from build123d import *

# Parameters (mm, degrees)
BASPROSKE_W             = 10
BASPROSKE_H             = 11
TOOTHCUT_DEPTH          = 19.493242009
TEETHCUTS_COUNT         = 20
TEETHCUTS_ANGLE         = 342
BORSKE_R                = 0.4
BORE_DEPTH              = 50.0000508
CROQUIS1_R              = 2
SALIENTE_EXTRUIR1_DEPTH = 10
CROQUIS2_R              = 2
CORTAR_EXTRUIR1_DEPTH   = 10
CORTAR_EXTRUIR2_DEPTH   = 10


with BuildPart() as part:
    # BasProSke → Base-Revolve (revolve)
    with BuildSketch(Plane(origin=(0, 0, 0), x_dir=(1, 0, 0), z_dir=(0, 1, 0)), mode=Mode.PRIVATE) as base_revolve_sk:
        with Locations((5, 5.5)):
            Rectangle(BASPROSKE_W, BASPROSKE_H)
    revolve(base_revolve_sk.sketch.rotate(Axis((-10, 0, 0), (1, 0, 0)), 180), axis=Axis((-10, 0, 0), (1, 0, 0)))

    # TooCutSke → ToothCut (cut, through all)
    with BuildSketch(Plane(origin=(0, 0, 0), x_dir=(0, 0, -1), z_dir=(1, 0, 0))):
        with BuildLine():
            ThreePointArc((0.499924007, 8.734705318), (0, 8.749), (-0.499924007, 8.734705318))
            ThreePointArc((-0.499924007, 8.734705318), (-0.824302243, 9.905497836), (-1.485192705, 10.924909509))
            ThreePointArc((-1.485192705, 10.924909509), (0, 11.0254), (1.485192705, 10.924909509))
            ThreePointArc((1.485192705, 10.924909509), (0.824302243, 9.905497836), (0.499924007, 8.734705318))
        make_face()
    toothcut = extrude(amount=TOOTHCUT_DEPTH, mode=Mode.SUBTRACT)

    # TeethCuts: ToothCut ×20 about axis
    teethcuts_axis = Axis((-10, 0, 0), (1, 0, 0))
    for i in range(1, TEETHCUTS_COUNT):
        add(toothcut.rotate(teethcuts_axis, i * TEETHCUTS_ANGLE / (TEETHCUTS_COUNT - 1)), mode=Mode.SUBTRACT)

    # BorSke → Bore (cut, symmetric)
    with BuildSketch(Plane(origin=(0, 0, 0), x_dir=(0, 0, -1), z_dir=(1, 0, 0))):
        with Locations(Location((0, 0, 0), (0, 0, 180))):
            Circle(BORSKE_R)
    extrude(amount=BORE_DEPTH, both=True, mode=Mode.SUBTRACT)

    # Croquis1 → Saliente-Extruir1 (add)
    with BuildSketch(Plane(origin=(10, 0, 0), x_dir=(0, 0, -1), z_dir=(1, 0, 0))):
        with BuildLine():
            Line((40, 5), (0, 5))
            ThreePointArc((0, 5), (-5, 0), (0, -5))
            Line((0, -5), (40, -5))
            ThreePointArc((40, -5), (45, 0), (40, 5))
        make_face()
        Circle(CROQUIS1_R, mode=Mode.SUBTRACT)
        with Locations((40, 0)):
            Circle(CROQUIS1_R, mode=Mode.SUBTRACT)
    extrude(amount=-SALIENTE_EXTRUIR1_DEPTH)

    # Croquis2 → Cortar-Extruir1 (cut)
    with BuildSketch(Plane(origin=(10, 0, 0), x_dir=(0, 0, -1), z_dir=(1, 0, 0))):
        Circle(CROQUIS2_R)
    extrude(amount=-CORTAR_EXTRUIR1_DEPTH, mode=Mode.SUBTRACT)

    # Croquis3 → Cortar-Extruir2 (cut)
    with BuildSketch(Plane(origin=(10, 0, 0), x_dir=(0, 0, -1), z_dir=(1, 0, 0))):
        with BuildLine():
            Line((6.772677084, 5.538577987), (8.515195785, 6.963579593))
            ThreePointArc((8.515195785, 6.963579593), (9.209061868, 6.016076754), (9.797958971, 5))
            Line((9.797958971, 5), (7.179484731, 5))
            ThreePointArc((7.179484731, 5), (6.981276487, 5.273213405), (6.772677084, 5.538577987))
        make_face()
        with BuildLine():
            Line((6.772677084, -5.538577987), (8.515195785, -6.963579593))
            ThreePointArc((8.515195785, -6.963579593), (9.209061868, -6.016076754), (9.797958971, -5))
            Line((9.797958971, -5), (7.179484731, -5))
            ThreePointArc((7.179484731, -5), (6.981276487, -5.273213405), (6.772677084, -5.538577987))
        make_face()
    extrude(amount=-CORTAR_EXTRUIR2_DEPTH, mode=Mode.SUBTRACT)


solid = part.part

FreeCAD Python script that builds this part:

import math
import FreeCAD as App
import Part
import Sketcher
from FreeCAD import Vector

doc = App.newDocument("Part")
body = doc.addObject("PartDesign::Body", "Body")

# Sketch on XZ plane
sketch1 = body.newObject("Sketcher::SketchObject", "Sketch")
sketch1.AttachmentSupport = (doc.getObject("XZ_Plane"), [""])
sketch1.MapMode = "FlatFace"
sketch1.addGeometry([
    Part.LineSegment(Vector(0, -11, 0), Vector(0, 0, 0)),
    Part.LineSegment(Vector(0, 0, 0), Vector(10, 0, 0)),
    Part.LineSegment(Vector(10, 0, 0), Vector(10, -11, 0)),
    Part.LineSegment(Vector(10, -11, 0), Vector(0, -11, 0)),
], False)
sketch1.addConstraint([
    Sketcher.Constraint("Coincident", 0, 2, 1, 1),
    Sketcher.Constraint("Coincident", 1, 2, 2, 1),
    Sketcher.Constraint("Coincident", 2, 2, 3, 1),
    Sketcher.Constraint("Coincident", 3, 2, 0, 1),
    Sketcher.Constraint("Vertical", 0),
    Sketcher.Constraint("Horizontal", 1),
    Sketcher.Constraint("Vertical", 2),
    Sketcher.Constraint("Horizontal", 3),
    Sketcher.Constraint("Coincident", 0, 2, -1, 1),
    Sketcher.Constraint("DistanceX", 1, 1, 1, 2, 10.0),
    Sketcher.Constraint("DistanceY", 0, 1, 0, 2, 11.0),
])
revolution = body.newObject("PartDesign::Revolution", "Revolution")
revolution.Profile = sketch1
revolution.ReferenceAxis = (sketch1, ["H_Axis"])
revolution.Angle = 360

# Sketch on YZ plane
sketch2 = body.newObject("Sketcher::SketchObject", "Sketch001")
sketch2.AttachmentSupport = (doc.getObject("YZ_Plane"), [""])
sketch2.MapMode = "FlatFace"
sketch2.addGeometry([
    Part.ArcOfCircle(Part.Circle(Vector(0, 0, 0), Vector(0, 0, 1), 8.7), math.radians(-3.28), math.radians(3.28)),
    Part.ArcOfCircle(Part.Circle(Vector(8.3, -4.5, 0), Vector(0, 0, 1), 4), math.radians(48), math.radians(83)),
    Part.ArcOfCircle(Part.Circle(Vector(0, 0, 0), Vector(0, 0, 1), 11), math.radians(-7.74), math.radians(7.74)),
    Part.ArcOfCircle(Part.Circle(Vector(8.3, 4.5, 0), Vector(0, 0, 1), 4), math.radians(-83), math.radians(-48)),
], False)
sketch2.addConstraint([
    Sketcher.Constraint("Coincident", 0, 1, 1, 2),
    Sketcher.Constraint("Coincident", 1, 1, 2, 1),
    Sketcher.Constraint("Coincident", 2, 2, 3, 2),
    Sketcher.Constraint("Coincident", 3, 1, 0, 2),
    Sketcher.Constraint("Coincident", 0, 3, -1, 1),
    Sketcher.Constraint("Coincident", 2, 3, -1, 1),
    Sketcher.Constraint("Equal", 1, 3),
    Sketcher.Constraint("Symmetric", 1, 3, 3, 3, -1),
    Sketcher.Constraint("Radius", 1, 4.0),
    Sketcher.Constraint("Radius", 0, 8.749),
    Sketcher.Constraint("Radius", 2, 11.0254),
    Sketcher.Constraint("DistanceY", 1, 3, -1, 1, 4.47219),
    Sketcher.Constraint("DistanceX", -1, 1, 1, 1, 10.92491),
])
pocket1 = body.newObject("PartDesign::Pocket", "Pocket")
pocket1.Profile = sketch2
pocket1.Type = "ThroughAll"
pocket1.Reversed = True
doc.recompute()

polarpattern = body.newObject("PartDesign::PolarPattern", "PolarPattern")
polarpattern.Originals = [pocket1]
polarpattern.Axis = (doc.getObject("X_Axis"), [""])
polarpattern.Angle = 360
polarpattern.Occurrences = 20
body.Tip = polarpattern

# Sketch on YZ plane
sketch3 = body.newObject("Sketcher::SketchObject", "Sketch002")
sketch3.AttachmentSupport = (doc.getObject("YZ_Plane"), [""])
sketch3.MapMode = "FlatFace"
sketch3.addGeometry(Part.Circle(Vector(0, 0, 0), Vector(0, 0, 1), 0.4), False)
sketch3.addConstraint([
    Sketcher.Constraint("Coincident", 0, 3, -1, 1),
    Sketcher.Constraint("Diameter", 0, 0.8),
])
pocket2 = body.newObject("PartDesign::Pocket", "Pocket001")
pocket2.Profile = sketch3
pocket2.Length = 100.000102
pocket2.Midplane = True

# Sketch on YZ plane
sketch4 = body.newObject("Sketcher::SketchObject", "Sketch003")
sketch4.AttachmentSupport = (doc.getObject("YZ_Plane"), [""])
sketch4.MapMode = "FlatFace"
sketch4.AttachmentOffset = App.Placement(Vector(0, 0, 10), App.Rotation())
sketch4.addGeometry([
    Part.LineSegment(Vector(5, -40, 0), Vector(5, 0, 0)),  # 0
    Part.ArcOfCircle(Part.Circle(Vector(0, 0, 0), Vector(0, 0, 1), 5), math.radians(0), math.radians(180)),  # 1
    Part.LineSegment(Vector(-5, 0, 0), Vector(-5, -40, 0)),  # 2
    Part.ArcOfCircle(Part.Circle(Vector(0, -40, 0), Vector(0, 0, 1), 5), math.radians(180), math.radians(360)),  # 3
    Part.Circle(Vector(0, 0, 0), Vector(0, 0, 1), 2),  # 4
    Part.Circle(Vector(0, -40, 0), Vector(0, 0, 1), 2),  # 5
], False)
sketch4.addConstraint([
    Sketcher.Constraint("Tangent", 0, 2, 1, 1),
    Sketcher.Constraint("Tangent", 1, 2, 2, 1),
    Sketcher.Constraint("Tangent", 2, 2, 3, 1),
    Sketcher.Constraint("Tangent", 3, 2, 0, 1),
    Sketcher.Constraint("Vertical", 0),
    Sketcher.Constraint("Vertical", 2),
    Sketcher.Constraint("Coincident", 1, 3, -1, 1),
    Sketcher.Constraint("Coincident", 4, 3, -1, 1),
    Sketcher.Constraint("Coincident", 5, 3, 3, 3),
    Sketcher.Constraint("Equal", 4, 5),
    Sketcher.Constraint("Diameter", 4, 4.0),
    Sketcher.Constraint("Radius", 1, 5.0),
    Sketcher.Constraint("DistanceY", 0, 1, 0, 2, 40.0),
])
pad1 = body.newObject("PartDesign::Pad", "Pad")
pad1.Profile = sketch4
pad1.Length = 10
pad1.Reversed = True

# Sketch on YZ plane
sketch5 = body.newObject("Sketcher::SketchObject", "Sketch004")
sketch5.AttachmentSupport = (doc.getObject("YZ_Plane"), [""])
sketch5.MapMode = "FlatFace"
sketch5.AttachmentOffset = App.Placement(Vector(0, 0, 10), App.Rotation())
sketch5.addGeometry(Part.Circle(Vector(0, 0, 0), Vector(0, 0, 1), 2), False)
sketch5.addConstraint([
    Sketcher.Constraint("Coincident", 0, 3, -1, 1),
    Sketcher.Constraint("Diameter", 0, 4.0),
])
pocket3 = body.newObject("PartDesign::Pocket", "Pocket002")
pocket3.Profile = sketch5
pocket3.Length = 10

# Sketch on YZ plane
sketch6 = body.newObject("Sketcher::SketchObject", "Sketch005")
sketch6.AttachmentSupport = (doc.getObject("YZ_Plane"), [""])
sketch6.MapMode = "FlatFace"
sketch6.AttachmentOffset = App.Placement(Vector(0, 0, 10), App.Rotation())
sketch6.addGeometry([
    Part.LineSegment(Vector(7, -8.5, 0), Vector(5.5, -6.8, 0)),  # 0
    Part.ArcOfCircle(Part.Circle(Vector(0, 0, 0), Vector(0, 0, 1), 8.7), math.radians(-55.15), math.radians(-50.72)),  # 1
    Part.LineSegment(Vector(5, -7.2, 0), Vector(5, -9.8, 0)),  # 2
    Part.ArcOfCircle(Part.Circle(Vector(0, 0, 0), Vector(0, 0, 1), 11), math.radians(-62.96), math.radians(-50.72)),  # 3
    Part.LineSegment(Vector(-5.5, -6.8, 0), Vector(-7, -8.5, 0)),  # 4
    Part.ArcOfCircle(Part.Circle(Vector(0, 0, 0), Vector(0, 0, 1), 11), math.radians(-129.28), math.radians(-117.04)),  # 5
    Part.LineSegment(Vector(-5, -9.8, 0), Vector(-5, -7.2, 0)),  # 6
    Part.ArcOfCircle(Part.Circle(Vector(0, 0, 0), Vector(0, 0, 1), 8.7), math.radians(-129.28), math.radians(-124.85)),  # 7
], False)
sketch6.addConstraint([
    Sketcher.Constraint("Coincident", 0, 2, 1, 2),
    Sketcher.Constraint("Coincident", 1, 1, 2, 1),
    Sketcher.Constraint("Coincident", 2, 2, 3, 1),
    Sketcher.Constraint("Coincident", 3, 2, 0, 1),
    Sketcher.Constraint("Coincident", 4, 2, 5, 1),
    Sketcher.Constraint("Coincident", 5, 2, 6, 1),
    Sketcher.Constraint("Coincident", 6, 2, 7, 2),
    Sketcher.Constraint("Coincident", 7, 1, 4, 1),
    Sketcher.Constraint("Vertical", 2),
    Sketcher.Constraint("Vertical", 6),
    Sketcher.Constraint("Coincident", 1, 3, -1, 1),
    Sketcher.Constraint("Coincident", 3, 3, -1, 1),
    Sketcher.Constraint("Coincident", 5, 3, -1, 1),
    Sketcher.Constraint("Coincident", 7, 3, -1, 1),
    Sketcher.Constraint("Equal", 3, 5),
    Sketcher.Constraint("Equal", 1, 7),
    Sketcher.Constraint("Horizontal", 3, 2, 4, 2),
    Sketcher.Constraint("Horizontal", 2, 2, 5, 2),
    Sketcher.Constraint("Horizontal", 0, 2, 7, 1),
    Sketcher.Constraint("Radius", 3, 11.0),
    Sketcher.Constraint("DistanceX", -1, 1, 1, 1, 5.0),
    Sketcher.Constraint("Radius", 1, 8.749),
    Sketcher.Constraint("DistanceX", 0, 2, 3, 2, 1.425002),
    Sketcher.Constraint("DistanceX", -1, 1, 3, 2, 6.96358),
])
pocket4 = body.newObject("PartDesign::Pocket", "Pocket003")
pocket4.Profile = sketch6
pocket4.Length = 10

doc.recompute()
